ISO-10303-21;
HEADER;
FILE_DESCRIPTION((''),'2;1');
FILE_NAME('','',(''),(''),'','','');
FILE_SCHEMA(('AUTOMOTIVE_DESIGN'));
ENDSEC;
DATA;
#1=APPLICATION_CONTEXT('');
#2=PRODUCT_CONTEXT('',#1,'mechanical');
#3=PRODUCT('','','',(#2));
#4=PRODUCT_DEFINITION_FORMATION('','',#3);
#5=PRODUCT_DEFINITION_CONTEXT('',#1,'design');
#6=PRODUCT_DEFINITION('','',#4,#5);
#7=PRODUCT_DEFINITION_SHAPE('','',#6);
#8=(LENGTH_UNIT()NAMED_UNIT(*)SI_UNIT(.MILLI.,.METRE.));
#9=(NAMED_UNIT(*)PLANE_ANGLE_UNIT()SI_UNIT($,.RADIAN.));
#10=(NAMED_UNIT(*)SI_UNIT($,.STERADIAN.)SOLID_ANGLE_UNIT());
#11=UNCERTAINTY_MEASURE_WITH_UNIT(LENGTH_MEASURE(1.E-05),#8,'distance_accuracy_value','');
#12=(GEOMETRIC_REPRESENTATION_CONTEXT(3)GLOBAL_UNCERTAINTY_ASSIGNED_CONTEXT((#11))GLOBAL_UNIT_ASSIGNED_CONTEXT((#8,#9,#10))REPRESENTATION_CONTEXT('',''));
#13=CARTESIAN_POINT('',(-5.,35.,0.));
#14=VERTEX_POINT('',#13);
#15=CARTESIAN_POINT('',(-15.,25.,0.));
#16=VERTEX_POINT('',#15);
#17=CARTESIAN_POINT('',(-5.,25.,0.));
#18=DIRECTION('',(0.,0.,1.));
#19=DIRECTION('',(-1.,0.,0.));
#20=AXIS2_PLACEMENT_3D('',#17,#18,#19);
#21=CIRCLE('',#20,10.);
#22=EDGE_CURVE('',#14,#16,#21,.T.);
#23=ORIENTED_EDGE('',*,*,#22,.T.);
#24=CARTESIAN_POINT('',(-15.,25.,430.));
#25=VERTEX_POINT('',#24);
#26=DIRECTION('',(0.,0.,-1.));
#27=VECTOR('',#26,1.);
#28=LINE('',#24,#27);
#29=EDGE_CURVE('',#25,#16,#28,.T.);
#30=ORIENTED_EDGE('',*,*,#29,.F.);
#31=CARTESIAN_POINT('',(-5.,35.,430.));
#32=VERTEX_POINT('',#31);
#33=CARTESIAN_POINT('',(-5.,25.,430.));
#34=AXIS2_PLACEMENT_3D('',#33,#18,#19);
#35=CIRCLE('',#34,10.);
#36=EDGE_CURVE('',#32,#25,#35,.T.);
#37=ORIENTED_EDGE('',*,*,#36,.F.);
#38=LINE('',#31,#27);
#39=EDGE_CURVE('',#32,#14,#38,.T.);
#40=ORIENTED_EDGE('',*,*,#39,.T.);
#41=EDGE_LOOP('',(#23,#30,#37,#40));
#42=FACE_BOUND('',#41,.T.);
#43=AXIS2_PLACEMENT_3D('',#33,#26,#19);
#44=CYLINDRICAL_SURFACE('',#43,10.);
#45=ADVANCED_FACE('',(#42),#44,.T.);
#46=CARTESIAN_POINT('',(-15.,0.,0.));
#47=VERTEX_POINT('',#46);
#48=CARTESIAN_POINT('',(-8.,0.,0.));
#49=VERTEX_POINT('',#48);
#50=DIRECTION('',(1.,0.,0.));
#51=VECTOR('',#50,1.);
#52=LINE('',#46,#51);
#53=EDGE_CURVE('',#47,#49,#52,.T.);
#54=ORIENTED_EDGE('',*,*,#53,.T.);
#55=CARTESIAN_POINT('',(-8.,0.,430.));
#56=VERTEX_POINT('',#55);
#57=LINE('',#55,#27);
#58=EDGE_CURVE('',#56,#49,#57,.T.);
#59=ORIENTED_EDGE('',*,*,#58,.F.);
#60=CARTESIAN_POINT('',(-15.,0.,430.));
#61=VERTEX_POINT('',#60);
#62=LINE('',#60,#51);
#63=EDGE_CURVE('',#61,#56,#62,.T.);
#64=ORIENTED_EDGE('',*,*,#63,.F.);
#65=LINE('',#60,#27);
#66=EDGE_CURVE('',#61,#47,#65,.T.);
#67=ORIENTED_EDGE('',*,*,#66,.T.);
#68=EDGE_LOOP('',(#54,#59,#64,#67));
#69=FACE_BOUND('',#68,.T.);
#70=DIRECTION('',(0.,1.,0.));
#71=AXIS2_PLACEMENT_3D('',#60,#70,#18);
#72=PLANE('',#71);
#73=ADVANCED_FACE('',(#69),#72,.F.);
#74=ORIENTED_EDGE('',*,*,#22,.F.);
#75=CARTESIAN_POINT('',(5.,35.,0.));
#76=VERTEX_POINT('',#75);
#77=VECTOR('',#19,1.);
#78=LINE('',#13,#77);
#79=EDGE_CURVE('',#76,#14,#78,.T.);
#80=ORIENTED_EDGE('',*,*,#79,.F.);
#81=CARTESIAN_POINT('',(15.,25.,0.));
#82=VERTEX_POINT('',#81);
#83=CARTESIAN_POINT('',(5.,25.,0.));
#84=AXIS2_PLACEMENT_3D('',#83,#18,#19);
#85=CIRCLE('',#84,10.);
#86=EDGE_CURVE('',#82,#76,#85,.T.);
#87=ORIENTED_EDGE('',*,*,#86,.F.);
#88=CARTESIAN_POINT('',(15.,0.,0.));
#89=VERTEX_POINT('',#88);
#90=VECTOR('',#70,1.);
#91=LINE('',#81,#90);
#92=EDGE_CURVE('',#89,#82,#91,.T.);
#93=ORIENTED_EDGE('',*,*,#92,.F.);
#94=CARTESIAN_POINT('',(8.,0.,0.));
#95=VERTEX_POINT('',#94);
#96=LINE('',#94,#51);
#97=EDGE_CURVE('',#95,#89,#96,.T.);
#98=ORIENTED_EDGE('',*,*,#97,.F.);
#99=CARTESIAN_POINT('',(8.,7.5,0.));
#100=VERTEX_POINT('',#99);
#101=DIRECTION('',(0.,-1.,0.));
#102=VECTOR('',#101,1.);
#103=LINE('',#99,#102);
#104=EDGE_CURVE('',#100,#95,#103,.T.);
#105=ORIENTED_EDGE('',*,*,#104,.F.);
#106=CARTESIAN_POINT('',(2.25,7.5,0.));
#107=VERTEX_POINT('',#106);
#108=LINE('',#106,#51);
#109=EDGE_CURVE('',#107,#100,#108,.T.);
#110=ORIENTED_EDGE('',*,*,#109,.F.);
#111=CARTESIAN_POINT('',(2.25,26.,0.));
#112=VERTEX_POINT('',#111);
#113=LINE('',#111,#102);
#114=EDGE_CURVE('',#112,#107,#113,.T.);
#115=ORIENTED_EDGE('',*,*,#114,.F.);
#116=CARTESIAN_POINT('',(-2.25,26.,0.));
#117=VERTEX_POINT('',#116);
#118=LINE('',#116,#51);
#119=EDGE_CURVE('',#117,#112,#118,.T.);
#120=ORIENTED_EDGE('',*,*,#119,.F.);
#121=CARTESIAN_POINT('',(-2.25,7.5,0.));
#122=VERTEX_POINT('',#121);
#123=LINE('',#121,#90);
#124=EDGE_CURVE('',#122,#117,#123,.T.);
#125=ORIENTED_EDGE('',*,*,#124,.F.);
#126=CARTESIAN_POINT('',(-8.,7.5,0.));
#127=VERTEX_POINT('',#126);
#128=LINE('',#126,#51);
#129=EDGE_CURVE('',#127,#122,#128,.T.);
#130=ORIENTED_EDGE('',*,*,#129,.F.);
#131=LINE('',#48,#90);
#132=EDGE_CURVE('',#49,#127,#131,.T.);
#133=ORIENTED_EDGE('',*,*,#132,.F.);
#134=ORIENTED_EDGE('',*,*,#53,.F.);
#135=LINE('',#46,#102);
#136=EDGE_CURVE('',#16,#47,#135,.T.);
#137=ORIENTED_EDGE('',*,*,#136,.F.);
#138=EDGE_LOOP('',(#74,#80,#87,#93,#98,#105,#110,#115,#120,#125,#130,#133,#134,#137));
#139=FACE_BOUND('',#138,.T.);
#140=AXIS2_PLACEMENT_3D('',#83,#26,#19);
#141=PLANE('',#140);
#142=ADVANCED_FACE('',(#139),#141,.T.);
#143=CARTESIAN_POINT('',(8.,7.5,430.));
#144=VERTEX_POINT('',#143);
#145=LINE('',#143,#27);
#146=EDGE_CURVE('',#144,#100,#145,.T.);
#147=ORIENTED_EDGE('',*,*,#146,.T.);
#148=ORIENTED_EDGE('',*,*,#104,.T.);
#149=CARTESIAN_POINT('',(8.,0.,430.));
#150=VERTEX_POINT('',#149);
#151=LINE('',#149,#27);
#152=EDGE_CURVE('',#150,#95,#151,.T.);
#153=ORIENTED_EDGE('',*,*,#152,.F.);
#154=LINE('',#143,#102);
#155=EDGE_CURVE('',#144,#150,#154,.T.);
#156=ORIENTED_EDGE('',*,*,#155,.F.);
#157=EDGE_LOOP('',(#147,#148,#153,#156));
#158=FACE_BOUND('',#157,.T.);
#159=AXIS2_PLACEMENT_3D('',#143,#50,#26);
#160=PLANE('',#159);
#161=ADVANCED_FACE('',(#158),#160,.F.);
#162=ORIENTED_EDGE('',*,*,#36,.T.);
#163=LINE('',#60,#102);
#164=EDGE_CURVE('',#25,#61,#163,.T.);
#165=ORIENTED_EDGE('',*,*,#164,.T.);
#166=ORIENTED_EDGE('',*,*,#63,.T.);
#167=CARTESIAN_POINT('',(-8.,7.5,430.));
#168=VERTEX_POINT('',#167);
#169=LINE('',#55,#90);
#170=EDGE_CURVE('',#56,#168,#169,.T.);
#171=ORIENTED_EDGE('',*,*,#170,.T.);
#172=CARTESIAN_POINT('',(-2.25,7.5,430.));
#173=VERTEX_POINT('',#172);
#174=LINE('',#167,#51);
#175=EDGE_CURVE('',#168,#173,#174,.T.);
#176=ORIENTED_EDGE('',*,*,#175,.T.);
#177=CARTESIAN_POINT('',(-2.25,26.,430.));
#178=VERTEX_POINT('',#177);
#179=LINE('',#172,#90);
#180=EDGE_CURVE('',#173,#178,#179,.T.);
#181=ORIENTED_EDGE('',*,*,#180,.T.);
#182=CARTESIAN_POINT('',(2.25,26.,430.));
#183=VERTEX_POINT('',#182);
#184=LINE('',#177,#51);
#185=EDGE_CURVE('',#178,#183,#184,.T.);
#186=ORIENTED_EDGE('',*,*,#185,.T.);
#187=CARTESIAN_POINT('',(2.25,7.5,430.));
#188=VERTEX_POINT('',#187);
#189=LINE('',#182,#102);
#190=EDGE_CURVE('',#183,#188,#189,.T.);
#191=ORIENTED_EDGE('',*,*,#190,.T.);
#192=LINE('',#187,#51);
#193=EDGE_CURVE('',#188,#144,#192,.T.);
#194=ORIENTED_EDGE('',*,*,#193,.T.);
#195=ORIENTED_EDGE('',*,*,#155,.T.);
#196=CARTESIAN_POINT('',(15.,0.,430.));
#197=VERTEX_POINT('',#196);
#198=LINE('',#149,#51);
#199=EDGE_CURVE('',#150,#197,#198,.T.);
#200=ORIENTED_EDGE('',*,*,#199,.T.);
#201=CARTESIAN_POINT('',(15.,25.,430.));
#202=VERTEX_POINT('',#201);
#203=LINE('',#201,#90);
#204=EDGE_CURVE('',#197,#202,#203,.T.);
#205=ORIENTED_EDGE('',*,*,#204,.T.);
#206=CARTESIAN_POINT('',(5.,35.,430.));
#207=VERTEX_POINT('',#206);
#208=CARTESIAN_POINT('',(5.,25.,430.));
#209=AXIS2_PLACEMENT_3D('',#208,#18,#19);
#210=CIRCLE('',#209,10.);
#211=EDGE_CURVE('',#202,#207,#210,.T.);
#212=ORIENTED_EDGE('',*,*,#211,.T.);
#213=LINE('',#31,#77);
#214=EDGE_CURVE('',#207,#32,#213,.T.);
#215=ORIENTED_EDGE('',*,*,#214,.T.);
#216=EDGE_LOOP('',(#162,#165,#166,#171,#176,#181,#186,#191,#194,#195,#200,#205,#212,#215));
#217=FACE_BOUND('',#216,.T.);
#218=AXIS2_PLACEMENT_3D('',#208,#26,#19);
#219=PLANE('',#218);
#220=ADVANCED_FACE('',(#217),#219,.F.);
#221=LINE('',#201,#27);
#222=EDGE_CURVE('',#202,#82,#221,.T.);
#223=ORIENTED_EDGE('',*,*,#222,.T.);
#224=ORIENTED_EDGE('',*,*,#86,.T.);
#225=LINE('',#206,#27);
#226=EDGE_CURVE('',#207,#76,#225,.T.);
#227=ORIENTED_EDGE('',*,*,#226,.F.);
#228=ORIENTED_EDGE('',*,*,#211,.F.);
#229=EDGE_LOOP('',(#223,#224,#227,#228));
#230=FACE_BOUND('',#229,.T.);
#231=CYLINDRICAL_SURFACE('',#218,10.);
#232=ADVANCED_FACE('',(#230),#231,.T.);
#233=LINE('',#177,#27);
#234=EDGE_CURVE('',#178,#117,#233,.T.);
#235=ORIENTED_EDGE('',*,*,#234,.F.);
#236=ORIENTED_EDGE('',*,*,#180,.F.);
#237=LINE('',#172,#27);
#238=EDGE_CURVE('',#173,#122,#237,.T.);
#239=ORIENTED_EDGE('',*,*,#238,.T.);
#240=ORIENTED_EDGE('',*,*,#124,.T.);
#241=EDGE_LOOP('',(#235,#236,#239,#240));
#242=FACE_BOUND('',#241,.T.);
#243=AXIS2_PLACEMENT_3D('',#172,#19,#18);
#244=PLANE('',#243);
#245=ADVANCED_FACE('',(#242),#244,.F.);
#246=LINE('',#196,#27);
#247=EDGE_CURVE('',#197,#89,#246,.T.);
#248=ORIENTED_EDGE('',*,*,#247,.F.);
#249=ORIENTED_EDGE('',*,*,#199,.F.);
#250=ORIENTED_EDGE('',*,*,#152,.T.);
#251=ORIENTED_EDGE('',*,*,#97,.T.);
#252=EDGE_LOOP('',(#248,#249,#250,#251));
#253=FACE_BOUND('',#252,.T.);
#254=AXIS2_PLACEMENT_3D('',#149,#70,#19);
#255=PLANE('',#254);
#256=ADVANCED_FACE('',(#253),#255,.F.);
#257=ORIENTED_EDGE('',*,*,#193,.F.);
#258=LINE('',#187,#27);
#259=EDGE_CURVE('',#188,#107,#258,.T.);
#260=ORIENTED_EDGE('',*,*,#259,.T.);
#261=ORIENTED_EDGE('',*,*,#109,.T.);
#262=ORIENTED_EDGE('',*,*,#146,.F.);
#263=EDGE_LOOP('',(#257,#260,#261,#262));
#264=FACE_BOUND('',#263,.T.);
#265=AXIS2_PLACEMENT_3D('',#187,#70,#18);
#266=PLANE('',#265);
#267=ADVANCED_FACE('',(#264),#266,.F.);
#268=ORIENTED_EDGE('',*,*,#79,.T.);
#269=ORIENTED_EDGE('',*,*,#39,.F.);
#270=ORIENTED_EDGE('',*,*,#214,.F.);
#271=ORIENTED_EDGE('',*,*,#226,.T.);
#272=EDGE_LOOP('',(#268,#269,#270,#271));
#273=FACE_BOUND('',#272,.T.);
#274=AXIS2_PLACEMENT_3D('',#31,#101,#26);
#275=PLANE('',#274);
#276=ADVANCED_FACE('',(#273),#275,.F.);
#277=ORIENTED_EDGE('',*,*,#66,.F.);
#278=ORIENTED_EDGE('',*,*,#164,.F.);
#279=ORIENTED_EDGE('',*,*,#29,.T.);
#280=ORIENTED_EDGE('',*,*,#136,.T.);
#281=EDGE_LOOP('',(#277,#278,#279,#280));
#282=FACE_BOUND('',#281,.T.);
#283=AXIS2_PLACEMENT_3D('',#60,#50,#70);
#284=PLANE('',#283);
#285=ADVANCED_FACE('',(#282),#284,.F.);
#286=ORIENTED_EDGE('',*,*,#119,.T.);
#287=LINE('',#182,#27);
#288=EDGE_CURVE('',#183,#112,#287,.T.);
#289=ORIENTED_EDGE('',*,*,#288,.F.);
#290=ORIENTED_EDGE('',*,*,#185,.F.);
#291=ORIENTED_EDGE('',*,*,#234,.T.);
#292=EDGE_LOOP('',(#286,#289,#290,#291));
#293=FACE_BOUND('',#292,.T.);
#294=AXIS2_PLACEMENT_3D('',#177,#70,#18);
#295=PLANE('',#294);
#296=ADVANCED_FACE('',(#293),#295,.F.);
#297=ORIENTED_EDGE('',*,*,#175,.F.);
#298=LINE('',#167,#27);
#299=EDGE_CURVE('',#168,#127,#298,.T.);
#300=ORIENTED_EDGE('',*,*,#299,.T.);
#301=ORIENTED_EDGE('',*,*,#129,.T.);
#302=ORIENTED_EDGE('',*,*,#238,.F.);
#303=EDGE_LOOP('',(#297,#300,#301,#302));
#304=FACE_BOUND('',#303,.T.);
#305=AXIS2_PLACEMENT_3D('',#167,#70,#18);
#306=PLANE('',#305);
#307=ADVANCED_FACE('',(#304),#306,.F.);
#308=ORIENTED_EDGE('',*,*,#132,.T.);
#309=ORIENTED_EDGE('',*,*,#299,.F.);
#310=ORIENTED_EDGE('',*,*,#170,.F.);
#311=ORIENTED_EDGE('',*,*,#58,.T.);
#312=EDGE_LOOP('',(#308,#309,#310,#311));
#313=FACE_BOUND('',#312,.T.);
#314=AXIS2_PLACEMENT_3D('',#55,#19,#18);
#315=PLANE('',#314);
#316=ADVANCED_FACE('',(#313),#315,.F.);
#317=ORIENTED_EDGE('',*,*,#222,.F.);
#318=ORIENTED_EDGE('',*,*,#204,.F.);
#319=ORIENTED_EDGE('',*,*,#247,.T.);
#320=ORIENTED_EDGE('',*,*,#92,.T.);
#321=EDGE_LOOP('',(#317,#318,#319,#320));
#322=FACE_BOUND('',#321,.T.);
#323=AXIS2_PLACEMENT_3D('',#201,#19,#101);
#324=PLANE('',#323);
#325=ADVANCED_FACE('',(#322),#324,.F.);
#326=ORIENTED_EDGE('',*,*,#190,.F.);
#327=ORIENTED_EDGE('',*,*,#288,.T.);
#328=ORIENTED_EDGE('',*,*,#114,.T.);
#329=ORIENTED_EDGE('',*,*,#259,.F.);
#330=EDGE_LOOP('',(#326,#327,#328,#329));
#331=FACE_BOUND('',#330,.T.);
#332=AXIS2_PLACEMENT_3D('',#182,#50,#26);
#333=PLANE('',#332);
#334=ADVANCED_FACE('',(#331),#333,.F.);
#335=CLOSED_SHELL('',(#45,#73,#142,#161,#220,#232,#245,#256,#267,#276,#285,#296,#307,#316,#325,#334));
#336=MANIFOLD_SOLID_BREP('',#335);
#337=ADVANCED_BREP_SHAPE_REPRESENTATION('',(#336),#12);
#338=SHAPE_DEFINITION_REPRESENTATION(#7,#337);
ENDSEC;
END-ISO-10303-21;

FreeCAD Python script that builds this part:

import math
import FreeCAD as App
import Part
import Sketcher
Q = App.Units.Quantity

doc = App.newDocument("Part")
body = doc.addObject("PartDesign::Body", "Body")

# Sketch on XY plane
sketch1 = body.newObject("Sketcher::SketchObject", "Sketch")
sketch1.AttachmentSupport = (doc.getObject("XY_Plane"), [""])
sketch1.MapMode = "FlatFace"
sketch1.addGeometry(Part.LineSegment(App.Vector(-15, 25, 0), App.Vector(-15, 0, 0)), False)
sketch1.addGeometry(Part.LineSegment(App.Vector(-15, 0, 0), App.Vector(-8, 0, 0)), False)
sketch1.addGeometry(Part.LineSegment(App.Vector(-8, 0, 0), App.Vector(-8, 7.5, 0)), False)
sketch1.addGeometry(Part.LineSegment(App.Vector(-8, 7.5, 0), App.Vector(-2.25, 7.5, 0)), False)
sketch1.addGeometry(Part.LineSegment(App.Vector(-2.25, 7.5, 0), App.Vector(-2.25, 26, 0)), False)
sketch1.addGeometry(Part.LineSegment(App.Vector(-2.25, 26, 0), App.Vector(2.25, 26, 0)), False)
sketch1.addGeometry(Part.LineSegment(App.Vector(2.25, 26, 0), App.Vector(2.25, 7.5, 0)), False)
sketch1.addGeometry(Part.LineSegment(App.Vector(2.25, 7.5, 0), App.Vector(8, 7.5, 0)), False)
sketch1.addGeometry(Part.LineSegment(App.Vector(8, 7.5, 0), App.Vector(8, 0, 0)), False)
sketch1.addGeometry(Part.LineSegment(App.Vector(8, 0, 0), App.Vector(15, 0, 0)), False)
sketch1.addGeometry(Part.LineSegment(App.Vector(15, 0, 0), App.Vector(15, 25, 0)), False)
sketch1.addGeometry(Part.ArcOfCircle(Part.Circle(App.Vector(5, 25, 0), App.Vector(0, 0, 1), 10), math.radians(0), math.radians(90)), False)
sketch1.addGeometry(Part.LineSegment(App.Vector(5, 35, 0), App.Vector(-5, 35, 0)), False)
sketch1.addGeometry(Part.ArcOfCircle(Part.Circle(App.Vector(-5, 25, 0), App.Vector(0, 0, 1), 10), math.radians(90), math.radians(180)), False)
sketch1.addConstraint(Sketcher.Constraint("Coincident", 0, 2, 1, 1))
sketch1.addConstraint(Sketcher.Constraint("Coincident", 1, 2, 2, 1))
sketch1.addConstraint(Sketcher.Constraint("Coincident", 2, 2, 3, 1))
sketch1.addConstraint(Sketcher.Constraint("Coincident", 3, 2, 4, 1))
sketch1.addConstraint(Sketcher.Constraint("Coincident", 4, 2, 5, 1))
sketch1.addConstraint(Sketcher.Constraint("Coincident", 5, 2, 6, 1))
sketch1.addConstraint(Sketcher.Constraint("Coincident", 6, 2, 7, 1))
sketch1.addConstraint(Sketcher.Constraint("Coincident", 7, 2, 8, 1))
sketch1.addConstraint(Sketcher.Constraint("Coincident", 8, 2, 9, 1))
sketch1.addConstraint(Sketcher.Constraint("Coincident", 9, 2, 10, 1))
sketch1.addConstraint(Sketcher.Constraint("Tangent", 10, 2, 11, 1))
sketch1.addConstraint(Sketcher.Constraint("Tangent", 11, 2, 12, 1))
sketch1.addConstraint(Sketcher.Constraint("Tangent", 12, 2, 13, 1))
sketch1.addConstraint(Sketcher.Constraint("Tangent", 13, 2, 0, 1))
sketch1.addConstraint(Sketcher.Constraint("Vertical", 0))
sketch1.addConstraint(Sketcher.Constraint("Horizontal", 1))
sketch1.addConstraint(Sketcher.Constraint("Vertical", 2))
sketch1.addConstraint(Sketcher.Constraint("Horizontal", 3))
sketch1.addConstraint(Sketcher.Constraint("Vertical", 4))
sketch1.addConstraint(Sketcher.Constraint("Horizontal", 5))
sketch1.addConstraint(Sketcher.Constraint("Vertical", 6))
sketch1.addConstraint(Sketcher.Constraint("Horizontal", 7))
sketch1.addConstraint(Sketcher.Constraint("Vertical", 8))
sketch1.addConstraint(Sketcher.Constraint("Horizontal", 9))
sketch1.addConstraint(Sketcher.Constraint("Vertical", 10))
sketch1.addConstraint(Sketcher.Constraint("Horizontal", 12))
sketch1.addConstraint(Sketcher.Constraint("Equal", 11, 13))
sketch1.addConstraint(Sketcher.Constraint("Symmetric", 1, 2, 8, 2, -1, 1))
sketch1.addConstraint(Sketcher.Constraint("Symmetric", 3, 2, 6, 2, -2))
sketch1.addConstraint(Sketcher.Constraint("Symmetric", 0, 2, 9, 2, -2))
sketch1.addConstraint(Sketcher.Constraint("Radius", 11, Q("10 mm")))
sketch1.addConstraint(Sketcher.Constraint("DistanceX", 1, 1, 1, 2, Q("7 mm")))
sketch1.addConstraint(Sketcher.Constraint("DistanceX", 12, 2, 12, 1, Q("10 mm")))
sketch1.addConstraint(Sketcher.Constraint("DistanceY", 0, 2, 0, 1, Q("25 mm")))
sketch1.addConstraint(Sketcher.Constraint("DistanceX", 5, 1, 5, 2, Q("4.5 mm")))
sketch1.addConstraint(Sketcher.Constraint("DistanceY", 2, 1, 2, 2, Q("7.5 mm")))
sketch1.addConstraint(Sketcher.Constraint("DistanceY", 4, 1, 4, 2, Q("18.5 mm")))
pad1 = body.newObject("PartDesign::Pad", "Pad")
pad1.Profile = sketch1
pad1.Length = 430

doc.recompute()
